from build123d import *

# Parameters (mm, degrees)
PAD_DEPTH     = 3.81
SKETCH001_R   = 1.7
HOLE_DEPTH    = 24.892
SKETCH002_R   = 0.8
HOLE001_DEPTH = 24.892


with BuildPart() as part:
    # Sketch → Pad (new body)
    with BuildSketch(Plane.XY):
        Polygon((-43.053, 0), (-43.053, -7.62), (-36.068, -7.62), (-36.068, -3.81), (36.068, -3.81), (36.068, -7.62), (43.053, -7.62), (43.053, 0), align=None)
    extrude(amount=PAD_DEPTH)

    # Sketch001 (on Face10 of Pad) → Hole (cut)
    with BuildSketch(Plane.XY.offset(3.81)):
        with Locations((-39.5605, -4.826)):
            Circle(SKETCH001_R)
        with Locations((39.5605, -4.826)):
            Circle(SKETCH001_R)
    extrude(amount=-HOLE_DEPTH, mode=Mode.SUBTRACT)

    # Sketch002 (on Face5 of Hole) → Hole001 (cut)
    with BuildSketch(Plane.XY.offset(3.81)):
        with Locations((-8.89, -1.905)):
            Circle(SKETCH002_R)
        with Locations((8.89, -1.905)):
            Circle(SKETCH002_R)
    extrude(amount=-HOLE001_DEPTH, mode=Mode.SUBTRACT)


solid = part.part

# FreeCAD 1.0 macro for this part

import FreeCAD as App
import Part
import Sketcher

V = App.Vector
Q = App.Units.Quantity

doc = App.newDocument("Part")
body = doc.addObject("PartDesign::Body", "Body")

# Sketch on XY plane
sketch1 = doc.addObject("Sketcher::SketchObject", "Sketch")
body.addObject(sketch1)
sketch1.AttachmentSupport = (doc.XY_Plane, [""])
sketch1.MapMode = "FlatFace"
sketch1.addGeometry([
    Part.LineSegment(V(-43.1, 0, 0), V(-43.1, -7.6, 0)),  # 0
    Part.LineSegment(V(-43.1, -7.6, 0), V(-36.1, -7.6, 0)),  # 1
    Part.LineSegment(V(-36.1, -7.6, 0), V(-36.1, -3.8, 0)),  # 2
    Part.LineSegment(V(-36.1, -3.8, 0), V(36.1, -3.8, 0)),  # 3
    Part.LineSegment(V(36.1, -3.8, 0), V(36.1, -7.6, 0)),  # 4
    Part.LineSegment(V(36.1, -7.6, 0), V(43.1, -7.6, 0)),  # 5
    Part.LineSegment(V(43.1, -7.6, 0), V(43.1, 0, 0)),  # 6
    Part.LineSegment(V(43.1, 0, 0), V(-43.1, 0, 0)),  # 7
], False)
sketch1.addConstraint([
    Sketcher.Constraint("Coincident", 0, 2, 1, 1),
    Sketcher.Constraint("Coincident", 1, 2, 2, 1),
    Sketcher.Constraint("Coincident", 2, 2, 3, 1),
    Sketcher.Constraint("Coincident", 3, 2, 4, 1),
    Sketcher.Constraint("Coincident", 4, 2, 5, 1),
    Sketcher.Constraint("Coincident", 5, 2, 6, 1),
    Sketcher.Constraint("Coincident", 6, 2, 7, 1),
    Sketcher.Constraint("Coincident", 7, 2, 0, 1),
    Sketcher.Constraint("Vertical", 0),
    Sketcher.Constraint("Horizontal", 1),
    Sketcher.Constraint("Vertical", 2),
    Sketcher.Constraint("Horizontal", 3),
    Sketcher.Constraint("Vertical", 4),
    Sketcher.Constraint("Horizontal", 5),
    Sketcher.Constraint("Vertical", 6),
    Sketcher.Constraint("Horizontal", 7),
    Sketcher.Constraint("Symmetric", 6, 2, 7, 2, -1, 1),
    Sketcher.Constraint("Symmetric", 1, 2, 4, 2, -2),
    Sketcher.Constraint("DistanceY", 0, 2, 0, 1, Q("0.3 in")),
    Sketcher.Constraint("DistanceX", 3, 1, 3, 2, Q("2.84 in")),
    Sketcher.Constraint("DistanceX", 7, 2, 7, 1, Q("3.39 in")),
    Sketcher.Constraint("DistanceY", 2, 1, 2, 2, Q("0.15 in")),
])
pad1 = doc.addObject("PartDesign::Pad", "Pad")
body.addObject(pad1)
pad1.Profile = sketch1
pad1.Length = Q("0.15 in")

# Sketch on XY plane
sketch2 = doc.addObject("Sketcher::SketchObject", "Sketch001")
body.addObject(sketch2)
sketch2.AttachmentSupport = (doc.XY_Plane, [""])
sketch2.MapMode = "FlatFace"
sketch2.AttachmentOffset = App.Placement(V(0, 0, 0.15 * 25.4), App.Rotation())
sketch2.addGeometry([
    Part.Circle(V(-39.6, -4.8, 0), V(0, 0, 1), 1.7),
    Part.Circle(V(39.6, -4.8, 0), V(0, 0, 1), 1.7),
], False)
sketch2.addConstraint([
    Sketcher.Constraint("Equal", 0, 1),
    Sketcher.Constraint("Symmetric", 0, 3, 1, 3, -2),
    Sketcher.Constraint("Diameter", 0, Q("3.4 mm")),
    Sketcher.Constraint("DistanceY", 0, 3, -1, 1, Q("0.19 in")),
    Sketcher.Constraint("DistanceX", 0, 3, 1, 3, Q("3.115 in")),
])
pocket1 = doc.addObject("PartDesign::Pocket", "Pocket")
body.addObject(pocket1)
pocket1.Profile = sketch2
pocket1.Length = Q("0.98 in")

# Sketch on XY plane
sketch3 = doc.addObject("Sketcher::SketchObject", "Sketch002")
body.addObject(sketch3)
sketch3.AttachmentSupport = (doc.XY_Plane, [""])
sketch3.MapMode = "FlatFace"
sketch3.AttachmentOffset = App.Placement(V(0, 0, 0.15 * 25.4), App.Rotation())
sketch3.addGeometry([
    Part.Circle(V(-8.9, -1.9, 0), V(0, 0, 1), 0.8),
    Part.Circle(V(8.9, -1.9, 0), V(0, 0, 1), 0.8),
], False)
sketch3.addConstraint([
    Sketcher.Constraint("Equal", 0, 1),
    Sketcher.Constraint("Symmetric", 0, 3, 1, 3, -2),
    Sketcher.Constraint("DistanceX", 0, 3, 1, 3, Q("0.7 in")),
    Sketcher.Constraint("Diameter", 0, Q("1.6 mm")),
    Sketcher.Constraint("DistanceY", 0, 3, -1, 1, Q("0.075 in")),
])
pocket2 = doc.addObject("PartDesign::Pocket", "Pocket001")
body.addObject(pocket2)
pocket2.Profile = sketch3
pocket2.Length = Q("0.98 in")

doc.recompute()
